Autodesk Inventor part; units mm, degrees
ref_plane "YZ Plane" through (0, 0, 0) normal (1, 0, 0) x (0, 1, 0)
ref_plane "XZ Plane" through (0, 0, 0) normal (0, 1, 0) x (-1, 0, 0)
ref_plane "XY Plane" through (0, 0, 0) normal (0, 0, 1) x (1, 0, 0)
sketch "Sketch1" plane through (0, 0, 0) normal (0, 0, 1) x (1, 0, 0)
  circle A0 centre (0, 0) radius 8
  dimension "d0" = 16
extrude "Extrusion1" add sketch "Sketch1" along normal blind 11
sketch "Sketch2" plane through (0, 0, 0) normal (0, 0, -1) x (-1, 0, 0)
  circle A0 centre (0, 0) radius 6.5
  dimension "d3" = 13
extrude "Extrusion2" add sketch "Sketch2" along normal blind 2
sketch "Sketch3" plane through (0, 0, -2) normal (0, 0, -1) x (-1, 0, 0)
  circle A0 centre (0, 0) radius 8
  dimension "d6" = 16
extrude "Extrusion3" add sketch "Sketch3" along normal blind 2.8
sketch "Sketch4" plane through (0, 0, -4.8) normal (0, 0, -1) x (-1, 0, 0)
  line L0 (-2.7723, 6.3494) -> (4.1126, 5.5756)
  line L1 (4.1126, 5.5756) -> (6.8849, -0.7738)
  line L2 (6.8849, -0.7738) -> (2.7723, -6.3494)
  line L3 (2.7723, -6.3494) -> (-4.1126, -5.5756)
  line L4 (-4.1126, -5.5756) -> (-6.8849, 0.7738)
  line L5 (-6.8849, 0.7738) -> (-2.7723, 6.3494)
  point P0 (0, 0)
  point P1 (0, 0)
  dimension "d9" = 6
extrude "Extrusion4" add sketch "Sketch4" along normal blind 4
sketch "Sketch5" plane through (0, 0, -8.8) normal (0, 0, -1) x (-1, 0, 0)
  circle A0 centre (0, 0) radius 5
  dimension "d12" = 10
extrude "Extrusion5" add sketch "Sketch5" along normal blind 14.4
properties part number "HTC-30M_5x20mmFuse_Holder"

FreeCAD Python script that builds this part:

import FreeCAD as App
import Part
import Sketcher

V = App.Vector
Q = App.Units.Quantity

doc = App.newDocument("Part")
body = doc.addObject("PartDesign::Body", "Body")

# Sketch on XY plane
sketch1 = body.newObject("Sketcher::SketchObject", "Sketch")
sketch1.AttachmentSupport = (doc.getObject("XY_Plane"), [""])
sketch1.MapMode = "FlatFace"
sketch1.addGeometry(Part.Circle(V(0, 0, 0), V(0, 0, 1), 8), False)
sketch1.addConstraint(Sketcher.Constraint("Coincident", 0, 3, -1, 1))
sketch1.addConstraint(Sketcher.Constraint("Diameter", 0, Q("16 mm")))
pad1 = body.newObject("PartDesign::Pad", "Pad")
pad1.Profile = sketch1
pad1.Length = 11

# Sketch on XY plane
sketch2 = body.newObject("Sketcher::SketchObject", "Sketch001")
sketch2.AttachmentSupport = (doc.getObject("XY_Plane"), [""])
sketch2.MapMode = "FlatFace"
sketch2.addGeometry(Part.Circle(V(0, 0, 0), V(0, 0, 1), 6), False)
sketch2.addConstraint(Sketcher.Constraint("Coincident", 0, 3, -1, 1))
sketch2.addConstraint(Sketcher.Constraint("Diameter", 0, Q("13 mm")))
pad2 = body.newObject("PartDesign::Pad", "Pad001")
pad2.Profile = sketch2
pad2.Length = 2
pad2.Reversed = True

# Sketch on XY plane
sketch3 = body.newObject("Sketcher::SketchObject", "Sketch002")
sketch3.AttachmentSupport = (doc.getObject("XY_Plane"), [""])
sketch3.MapMode = "FlatFace"
sketch3.AttachmentOffset = App.Placement(V(0, 0, -2), App.Rotation())
sketch3.addGeometry(Part.Circle(V(0, 0, 0), V(0, 0, 1), 8), False)
sketch3.addConstraint(Sketcher.Constraint("Coincident", 0, 3, -1, 1))
sketch3.addConstraint(Sketcher.Constraint("Diameter", 0, Q("16 mm")))
pad3 = body.newObject("PartDesign::Pad", "Pad002")
pad3.Profile = sketch3
pad3.Length = 2.8
pad3.Reversed = True

# Sketch on XY plane
sketch4 = body.newObject("Sketcher::SketchObject", "Sketch003")
sketch4.AttachmentSupport = (doc.getObject("XY_Plane"), [""])
sketch4.MapMode = "FlatFace"
sketch4.AttachmentOffset = App.Placement(V(0, 0, -4.8), App.Rotation())
sketch4.addGeometry(Part.LineSegment(V(-4, 6, 0), V(3, 6, 0)), False)
sketch4.addGeometry(Part.LineSegment(V(3, 6, 0), V(7, 1, 0)), False)
sketch4.addGeometry(Part.LineSegment(V(7, 1, 0), V(4, -6, 0)), False)
sketch4.addGeometry(Part.LineSegment(V(4, -6, 0), V(-3, -6, 0)), False)
sketch4.addGeometry(Part.LineSegment(V(-3, -6, 0), V(-7, -1, 0)), False)
sketch4.addGeometry(Part.LineSegment(V(-7, -1, 0), V(-4, 6, 0)), False)
sketch4.addConstraint(Sketcher.Constraint("Coincident", 0, 2, 1, 1))
sketch4.addConstraint(Sketcher.Constraint("Coincident", 1, 2, 2, 1))
sketch4.addConstraint(Sketcher.Constraint("Coincident", 2, 2, 3, 1))
sketch4.addConstraint(Sketcher.Constraint("Coincident", 3, 2, 4, 1))
sketch4.addConstraint(Sketcher.Constraint("Coincident", 4, 2, 5, 1))
sketch4.addConstraint(Sketcher.Constraint("Coincident", 5, 2, 0, 1))
sketch4.addConstraint(Sketcher.Constraint("Symmetric", 0, 2, 3, 2, -1, 1))
sketch4.addConstraint(Sketcher.Constraint("Symmetric", 1, 2, 4, 2, -1, 1))
sketch4.addConstraint(Sketcher.Constraint("Symmetric", 2, 2, 5, 2, -1, 1))
sketch4.addConstraint(Sketcher.Constraint("Equal", 0, 1))
sketch4.addConstraint(Sketcher.Constraint("Equal", 1, 2))
sketch4.addConstraint(Sketcher.Constraint("DistanceX", -1, 1, 1, 2, Q("6.885 mm")))
sketch4.addConstraint(Sketcher.Constraint("DistanceY", 2, 2, 0, 2, Q("11.925 mm")))
sketch4.addConstraint(Sketcher.Constraint("DistanceX", 3, 2, 2, 2, Q("6.885 mm")))
sketch4.addConstraint(Sketcher.Constraint("Distance", 0, Q("6.9282 mm")))
pad4 = body.newObject("PartDesign::Pad", "Pad003")
pad4.Profile = sketch4
pad4.Length = 4
pad4.Reversed = True

# Sketch on XY plane
sketch5 = body.newObject("Sketcher::SketchObject", "Sketch004")
sketch5.AttachmentSupport = (doc.getObject("XY_Plane"), [""])
sketch5.MapMode = "FlatFace"
sketch5.AttachmentOffset = App.Placement(V(0, 0, -8.8), App.Rotation())
sketch5.addGeometry(Part.Circle(V(0, 0, 0), V(0, 0, 1), 5), False)
sketch5.addConstraint(Sketcher.Constraint("Coincident", 0, 3, -1, 1))
sketch5.addConstraint(Sketcher.Constraint("Diameter", 0, Q("10 mm")))
pad5 = body.newObject("PartDesign::Pad", "Pad004")
pad5.Profile = sketch5
pad5.Length = 14.4
pad5.Reversed = True

doc.recompute()
